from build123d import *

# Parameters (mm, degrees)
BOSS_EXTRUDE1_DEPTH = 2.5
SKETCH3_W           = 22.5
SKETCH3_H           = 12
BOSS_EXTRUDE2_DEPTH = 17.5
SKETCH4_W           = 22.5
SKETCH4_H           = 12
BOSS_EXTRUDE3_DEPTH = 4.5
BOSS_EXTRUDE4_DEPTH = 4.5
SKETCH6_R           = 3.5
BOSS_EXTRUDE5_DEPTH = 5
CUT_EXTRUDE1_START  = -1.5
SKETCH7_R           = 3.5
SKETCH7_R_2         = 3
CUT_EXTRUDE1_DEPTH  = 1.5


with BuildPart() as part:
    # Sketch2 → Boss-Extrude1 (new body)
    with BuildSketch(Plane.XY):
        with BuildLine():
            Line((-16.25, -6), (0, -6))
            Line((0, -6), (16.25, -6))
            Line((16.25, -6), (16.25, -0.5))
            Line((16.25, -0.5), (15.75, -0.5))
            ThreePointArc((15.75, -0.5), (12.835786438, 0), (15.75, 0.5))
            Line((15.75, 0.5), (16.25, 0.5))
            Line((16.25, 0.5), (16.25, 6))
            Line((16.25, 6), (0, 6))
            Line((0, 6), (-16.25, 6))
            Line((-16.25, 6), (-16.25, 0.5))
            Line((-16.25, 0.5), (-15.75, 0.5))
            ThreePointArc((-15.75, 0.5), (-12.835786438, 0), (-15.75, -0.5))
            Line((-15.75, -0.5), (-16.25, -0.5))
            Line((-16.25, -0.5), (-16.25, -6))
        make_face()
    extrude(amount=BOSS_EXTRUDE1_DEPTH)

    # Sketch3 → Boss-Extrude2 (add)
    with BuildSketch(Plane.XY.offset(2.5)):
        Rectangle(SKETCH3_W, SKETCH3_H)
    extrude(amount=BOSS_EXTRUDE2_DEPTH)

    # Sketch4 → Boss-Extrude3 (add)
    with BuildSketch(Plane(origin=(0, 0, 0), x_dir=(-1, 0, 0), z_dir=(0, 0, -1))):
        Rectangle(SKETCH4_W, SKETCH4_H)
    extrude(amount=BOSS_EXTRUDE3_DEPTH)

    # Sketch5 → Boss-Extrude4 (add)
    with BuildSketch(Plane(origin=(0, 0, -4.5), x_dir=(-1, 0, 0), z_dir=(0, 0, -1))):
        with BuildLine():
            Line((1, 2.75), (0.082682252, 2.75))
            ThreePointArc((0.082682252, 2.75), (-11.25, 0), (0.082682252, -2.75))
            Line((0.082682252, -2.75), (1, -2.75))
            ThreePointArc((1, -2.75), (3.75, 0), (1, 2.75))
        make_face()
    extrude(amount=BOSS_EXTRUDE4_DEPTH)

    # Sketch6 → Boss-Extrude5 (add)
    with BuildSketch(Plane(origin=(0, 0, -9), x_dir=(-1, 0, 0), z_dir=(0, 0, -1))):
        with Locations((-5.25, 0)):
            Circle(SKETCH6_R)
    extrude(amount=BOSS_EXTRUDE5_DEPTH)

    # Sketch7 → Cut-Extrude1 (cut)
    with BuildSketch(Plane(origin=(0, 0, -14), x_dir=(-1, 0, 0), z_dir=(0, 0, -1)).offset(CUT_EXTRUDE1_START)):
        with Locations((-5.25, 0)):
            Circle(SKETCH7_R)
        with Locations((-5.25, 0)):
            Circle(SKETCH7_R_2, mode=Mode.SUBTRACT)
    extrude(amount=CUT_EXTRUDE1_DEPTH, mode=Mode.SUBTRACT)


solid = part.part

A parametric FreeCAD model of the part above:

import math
import FreeCAD as App
import Part
import Sketcher

V = App.Vector
Q = App.Units.Quantity


def add_polygon(sketch, points):
    """Adds a closed chain of lines whose ends are joined by coincident constraints."""
    first, n = sketch.GeometryCount, len(points)
    for a, b in zip(points, points[1:] + points[:1]):
        sketch.addGeometry(Part.LineSegment(App.Vector(*a, 0), App.Vector(*b, 0)), False)
    for i in range(n):
        sketch.addConstraint(Sketcher.Constraint("Coincident", first + i, 2, first + (i + 1) % n, 1))

doc = App.newDocument("Part")
body = doc.addObject("PartDesign::Body", "Body")

sketch1 = doc.addObject("Sketcher::SketchObject", "Sketch")
body.addObject(sketch1)
sketch1.AttachmentSupport = (doc.XY_Plane, [""])
sketch1.MapMode = "FlatFace"
sketch1.addGeometry(Part.LineSegment(V(-16.25, -6, 0), V(16.25, -6, 0)), False)
sketch1.addGeometry(Part.LineSegment(V(16.25, -6, 0), V(16.25, -0.5, 0)), False)
sketch1.addGeometry(Part.LineSegment(V(16.25, -0.5, 0), V(15.75, -0.5, 0)), False)
sketch1.addGeometry(Part.ArcOfCircle(Part.Circle(V(14.335786, 0, 0), V(0, 0, 1), 1.5), math.radians(19.471221), math.radians(340.528779)), False)
sketch1.addGeometry(Part.LineSegment(V(15.75, 0.5, 0), V(16.25, 0.5, 0)), False)
sketch1.addGeometry(Part.LineSegment(V(16.25, 0.5, 0), V(16.25, 6, 0)), False)
sketch1.addGeometry(Part.LineSegment(V(16.25, 6, 0), V(-16.25, 6, 0)), False)
sketch1.addGeometry(Part.LineSegment(V(-16.25, 6, 0), V(-16.25, 0.5, 0)), False)
sketch1.addGeometry(Part.LineSegment(V(-16.25, 0.5, 0), V(-15.75, 0.5, 0)), False)
sketch1.addGeometry(Part.ArcOfCircle(Part.Circle(V(-14.335786, 0, 0), V(0, 0, 1), 1.5), math.radians(-160.528779), math.radians(160.528779)), False)
sketch1.addGeometry(Part.LineSegment(V(-15.75, -0.5, 0), V(-16.25, -0.5, 0)), False)
sketch1.addGeometry(Part.LineSegment(V(-16.25, -0.5, 0), V(-16.25, -6, 0)), False)
sketch1.addConstraint(Sketcher.Constraint("Coincident", 0, 2, 1, 1))
sketch1.addConstraint(Sketcher.Constraint("Coincident", 1, 2, 2, 1))
sketch1.addConstraint(Sketcher.Constraint("Coincident", 2, 2, 3, 2))
sketch1.addConstraint(Sketcher.Constraint("Coincident", 3, 1, 4, 1))
sketch1.addConstraint(Sketcher.Constraint("Coincident", 4, 2, 5, 1))
sketch1.addConstraint(Sketcher.Constraint("Coincident", 5, 2, 6, 1))
sketch1.addConstraint(Sketcher.Constraint("Coincident", 6, 2, 7, 1))
sketch1.addConstraint(Sketcher.Constraint("Coincident", 7, 2, 8, 1))
sketch1.addConstraint(Sketcher.Constraint("Coincident", 8, 2, 9, 2))
sketch1.addConstraint(Sketcher.Constraint("Coincident", 9, 1, 10, 1))
sketch1.addConstraint(Sketcher.Constraint("Coincident", 10, 2, 11, 1))
sketch1.addConstraint(Sketcher.Constraint("Coincident", 11, 2, 0, 1))
sketch1.addConstraint(Sketcher.Constraint("Horizontal", 0))
sketch1.addConstraint(Sketcher.Constraint("Vertical", 1))
sketch1.addConstraint(Sketcher.Constraint("Horizontal", 2))
sketch1.addConstraint(Sketcher.Constraint("Horizontal", 4))
sketch1.addConstraint(Sketcher.Constraint("Vertical", 5))
sketch1.addConstraint(Sketcher.Constraint("Horizontal", 6))
sketch1.addConstraint(Sketcher.Constraint("Vertical", 7))
sketch1.addConstraint(Sketcher.Constraint("Horizontal", 8))
sketch1.addConstraint(Sketcher.Constraint("Horizontal", 10))
sketch1.addConstraint(Sketcher.Constraint("Vertical", 11))
sketch1.addConstraint(Sketcher.Constraint("Equal", 3, 9))
sketch1.addConstraint(Sketcher.Constraint("Symmetric", 3, 3, 9, 3, -1, 1))
sketch1.addConstraint(Sketcher.Constraint("Symmetric", 0, 2, 6, 2, -1, 1))
sketch1.addConstraint(Sketcher.Constraint("Symmetric", 4, 2, 10, 2, -1, 1))
sketch1.addConstraint(Sketcher.Constraint("Symmetric", 4, 2, 7, 2, -2))
sketch1.addConstraint(Sketcher.Constraint("Symmetric", 2, 2, 9, 1, -2))
sketch1.addConstraint(Sketcher.Constraint("Radius", 3, Q("1.5 mm")))
sketch1.addConstraint(Sketcher.Constraint("DistanceX", 0, 1, 0, 2, Q("32.5 mm")))
sketch1.addConstraint(Sketcher.Constraint("DistanceX", 2, 2, 2, 1, Q("0.5 mm")))
sketch1.addConstraint(Sketcher.Constraint("DistanceY", 1, 1, 1, 2, Q("5.5 mm")))
sketch1.addConstraint(Sketcher.Constraint("DistanceY", 0, 2, -1, 1, Q("6 mm")))
pad1 = doc.addObject("PartDesign::Pad", "Pad")
body.addObject(pad1)
pad1.Profile = sketch1
pad1.Length = 2.5

sketch2 = doc.addObject("Sketcher::SketchObject", "Sketch001")
body.addObject(sketch2)
sketch2.AttachmentSupport = (doc.XY_Plane, [""])
sketch2.MapMode = "FlatFace"
sketch2.AttachmentOffset = App.Placement(V(0, 0, 2.5), App.Rotation())
add_polygon(sketch2, [(-11.25, 6), (-11.25, -6), (11.25, -6), (11.25, 6)])
sketch2.addConstraint(Sketcher.Constraint("Vertical", 0))
sketch2.addConstraint(Sketcher.Constraint("Horizontal", 1))
sketch2.addConstraint(Sketcher.Constraint("Vertical", 2))
sketch2.addConstraint(Sketcher.Constraint("Horizontal", 3))
sketch2.addConstraint(Sketcher.Constraint("Symmetric", 0, 2, 2, 2, -1, 1))
sketch2.addConstraint(Sketcher.Constraint("DistanceY", 0, 2, 0, 1, Q("12 mm")))
sketch2.addConstraint(Sketcher.Constraint("DistanceX", 1, 1, 1, 2, Q("22.5 mm")))
pad2 = doc.addObject("PartDesign::Pad", "Pad001")
body.addObject(pad2)
pad2.Profile = sketch2
pad2.Length = 17.5

sketch3 = doc.addObject("Sketcher::SketchObject", "Sketch002")
body.addObject(sketch3)
sketch3.AttachmentSupport = (doc.XY_Plane, [""])
sketch3.MapMode = "FlatFace"
add_polygon(sketch3, [(11.25, 6), (11.25, -6), (-11.25, -6), (-11.25, 6)])
sketch3.addConstraint(Sketcher.Constraint("Vertical", 0))
sketch3.addConstraint(Sketcher.Constraint("Horizontal", 1))
sketch3.addConstraint(Sketcher.Constraint("Vertical", 2))
sketch3.addConstraint(Sketcher.Constraint("Horizontal", 3))
sketch3.addConstraint(Sketcher.Constraint("Symmetric", 0, 2, 2, 2, -1, 1))
sketch3.addConstraint(Sketcher.Constraint("DistanceY", 0, 2, 0, 1, Q("12 mm")))
sketch3.addConstraint(Sketcher.Constraint("DistanceX", 1, 2, 1, 1, Q("22.5 mm")))
pad3 = doc.addObject("PartDesign::Pad", "Pad002")
body.addObject(pad3)
pad3.Profile = sketch3
pad3.Length = 4.5
pad3.Reversed = True

sketch4 = doc.addObject("Sketcher::SketchObject", "Sketch003")
body.addObject(sketch4)
sketch4.AttachmentSupport = (doc.XY_Plane, [""])
sketch4.MapMode = "FlatFace"
sketch4.AttachmentOffset = App.Placement(V(0, 0, -4.5), App.Rotation())
sketch4.addGeometry(Part.LineSegment(V(-1, 2.75, 0), V(-0.082682, 2.75, 0)), False)
sketch4.addGeometry(Part.ArcOfCircle(Part.Circle(V(5.25, 0, 0), V(0, 0, 1), 6), math.radians(-152.720387), math.radians(152.720387)), False)
sketch4.addGeometry(Part.LineSegment(V(-0.082682, -2.75, 0), V(-1, -2.75, 0)), False)
sketch4.addGeometry(Part.ArcOfCircle(Part.Circle(V(-1, 0, 0), V(0, 0, 1), 2.75), math.radians(90), math.radians(270)), False)
sketch4.addConstraint(Sketcher.Constraint("Coincident", 0, 2, 1, 2))
sketch4.addConstraint(Sketcher.Constraint("Coincident", 1, 1, 2, 1))
sketch4.addConstraint(Sketcher.Constraint("Tangent", 2, 2, 3, 2))
sketch4.addConstraint(Sketcher.Constraint("Tangent", 3, 1, 0, 1))
sketch4.addConstraint(Sketcher.Constraint("Horizontal", 0))
sketch4.addConstraint(Sketcher.Constraint("Horizontal", 2))
sketch4.addConstraint(Sketcher.Constraint("Symmetric", 0, 2, 1, 1, -1))
sketch4.addConstraint(Sketcher.Constraint("Radius", 1, Q("6 mm")))
sketch4.addConstraint(Sketcher.Constraint("Radius", 3, Q("2.75 mm")))
sketch4.addConstraint(Sketcher.Constraint("DistanceX", 3, 3, -1, 1, Q("1 mm")))
sketch4.addConstraint(Sketcher.Constraint("DistanceX", -1, 1, 1, 3, Q("5.25 mm")))
pad4 = doc.addObject("PartDesign::Pad", "Pad003")
body.addObject(pad4)
pad4.Profile = sketch4
pad4.Length = 4.5
pad4.Reversed = True

sketch5 = doc.addObject("Sketcher::SketchObject", "Sketch004")
body.addObject(sketch5)
sketch5.AttachmentSupport = (doc.XY_Plane, [""])
sketch5.MapMode = "FlatFace"
sketch5.AttachmentOffset = App.Placement(V(0, 0, -9), App.Rotation())
sketch5.addGeometry(Part.Circle(V(5.25, 0, 0), V(0, 0, 1), 3.5), False)
sketch5.addConstraint(Sketcher.Constraint("PointOnObject", 0, 3, -1))
sketch5.addConstraint(Sketcher.Constraint("Diameter", 0, Q("7 mm")))
sketch5.addConstraint(Sketcher.Constraint("DistanceX", -1, 1, 0, 3, Q("5.25 mm")))
pad5 = doc.addObject("PartDesign::Pad", "Pad004")
body.addObject(pad5)
pad5.Profile = sketch5
pad5.Length = 5
pad5.Reversed = True

sketch6 = doc.addObject("Sketcher::SketchObject", "Sketch005")
body.addObject(sketch6)
sketch6.AttachmentSupport = (doc.XY_Plane, [""])
sketch6.MapMode = "FlatFace"
sketch6.AttachmentOffset = App.Placement(V(0, 0, -12.5), App.Rotation())
sketch6.addGeometry(Part.Circle(V(5.25, 0, 0), V(0, 0, 1), 3.5), False)
sketch6.addGeometry(Part.Circle(V(5.25, 0, 0), V(0, 0, 1), 3), False)
sketch6.addConstraint(Sketcher.Constraint("Coincident", 1, 3, 0, 3))
sketch6.addConstraint(Sketcher.Constraint("PointOnObject", 0, 3, -1))
sketch6.addConstraint(Sketcher.Constraint("Diameter", 0, Q("7 mm")))
sketch6.addConstraint(Sketcher.Constraint("Diameter", 1, Q("6 mm")))
sketch6.addConstraint(Sketcher.Constraint("DistanceX", -1, 1, 0, 3, Q("5.25 mm")))
pocket1 = doc.addObject("PartDesign::Pocket", "Pocket")
body.addObject(pocket1)
pocket1.Profile = sketch6
pocket1.Length = 1.5

doc.recompute()
